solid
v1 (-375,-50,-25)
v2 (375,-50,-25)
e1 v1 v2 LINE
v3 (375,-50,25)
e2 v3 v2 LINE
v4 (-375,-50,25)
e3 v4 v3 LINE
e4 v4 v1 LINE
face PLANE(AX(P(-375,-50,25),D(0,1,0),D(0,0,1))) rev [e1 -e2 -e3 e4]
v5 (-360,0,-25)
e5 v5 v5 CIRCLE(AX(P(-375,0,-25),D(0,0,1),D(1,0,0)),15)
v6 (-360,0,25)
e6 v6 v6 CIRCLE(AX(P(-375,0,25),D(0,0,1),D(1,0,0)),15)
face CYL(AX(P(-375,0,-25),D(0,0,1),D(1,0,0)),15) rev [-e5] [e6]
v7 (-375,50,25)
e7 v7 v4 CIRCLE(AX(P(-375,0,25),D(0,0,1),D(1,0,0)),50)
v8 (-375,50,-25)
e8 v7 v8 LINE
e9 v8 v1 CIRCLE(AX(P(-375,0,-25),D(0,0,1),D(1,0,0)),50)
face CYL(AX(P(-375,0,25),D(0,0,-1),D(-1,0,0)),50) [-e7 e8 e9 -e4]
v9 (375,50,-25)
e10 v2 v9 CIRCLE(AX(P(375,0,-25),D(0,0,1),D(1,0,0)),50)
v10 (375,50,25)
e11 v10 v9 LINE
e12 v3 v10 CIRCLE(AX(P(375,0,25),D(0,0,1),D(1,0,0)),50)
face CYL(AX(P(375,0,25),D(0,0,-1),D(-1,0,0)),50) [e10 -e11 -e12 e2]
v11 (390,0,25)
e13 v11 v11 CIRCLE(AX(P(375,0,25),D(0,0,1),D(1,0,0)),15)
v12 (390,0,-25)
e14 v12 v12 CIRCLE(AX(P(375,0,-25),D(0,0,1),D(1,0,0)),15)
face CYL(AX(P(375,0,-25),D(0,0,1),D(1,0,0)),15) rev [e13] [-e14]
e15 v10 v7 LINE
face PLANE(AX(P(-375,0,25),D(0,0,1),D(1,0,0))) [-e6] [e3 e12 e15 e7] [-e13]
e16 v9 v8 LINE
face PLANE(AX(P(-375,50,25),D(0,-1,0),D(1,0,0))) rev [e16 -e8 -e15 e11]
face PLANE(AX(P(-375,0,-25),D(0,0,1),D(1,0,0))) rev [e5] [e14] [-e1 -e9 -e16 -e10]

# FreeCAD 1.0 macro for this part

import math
import FreeCAD as App
import Part
import Sketcher
Q = App.Units.Quantity

doc = App.newDocument("Part")
body = doc.addObject("PartDesign::Body", "Body")

sketch1 = body.newObject("Sketcher::SketchObject", "Sketch")
sketch1.AttachmentSupport = (doc.getObject("XY_Plane"), [""])
sketch1.MapMode = "FlatFace"
sketch1.addGeometry([
    Part.LineSegment(App.Vector(375, 50, 0), App.Vector(-375, 50, 0)),
    Part.ArcOfCircle(Part.Circle(App.Vector(-375, 0, 0), App.Vector(0, 0, 1), 50), math.radians(90), math.radians(270)),
    Part.LineSegment(App.Vector(-375, -50, 0), App.Vector(375, -50, 0)),
    Part.ArcOfCircle(Part.Circle(App.Vector(375, 0, 0), App.Vector(0, 0, 1), 50), math.radians(-90), math.radians(90)),
], False)
sketch1.addConstraint([
    Sketcher.Constraint("Tangent", 0, 2, 1, 1),
    Sketcher.Constraint("Tangent", 1, 2, 2, 1),
    Sketcher.Constraint("Tangent", 2, 2, 3, 1),
    Sketcher.Constraint("Tangent", 3, 2, 0, 1),
    Sketcher.Constraint("Horizontal", 0),
    Sketcher.Constraint("Horizontal", 2),
    Sketcher.Constraint("Symmetric", 1, 3, 3, 3, -1, 1),
    Sketcher.Constraint("Radius", 1, Q("50 mm")),
    Sketcher.Constraint("DistanceX", 0, 2, 0, 1, Q("750 mm")),
])
pad1 = body.newObject("PartDesign::Pad", "Pad")
pad1.Profile = sketch1
pad1.Length = 50
pad1.Midplane = True

sketch2 = body.newObject("Sketcher::SketchObject", "Sketch001")
sketch2.AttachmentSupport = (doc.getObject("XY_Plane"), [""])
sketch2.MapMode = "FlatFace"
sketch2.AttachmentOffset = App.Placement(App.Vector(0, 0, 25), App.Rotation())
sketch2.addGeometry([
    Part.Circle(App.Vector(-375, 0, 0), App.Vector(0, 0, 1), 15),
    Part.Circle(App.Vector(375, 0, 0), App.Vector(0, 0, 1), 15),
], False)
sketch2.addConstraint([
    Sketcher.Constraint("Equal", 0, 1),
    Sketcher.Constraint("Symmetric", 0, 3, 1, 3, -1, 1),
    Sketcher.Constraint("PointOnObject", 0, 3, -1),
    Sketcher.Constraint("Diameter", 0, Q("30 mm")),
    Sketcher.Constraint("DistanceX", 0, 3, -1, 1, Q("375 mm")),
])
pocket1 = body.newObject("PartDesign::Pocket", "Pocket")
pocket1.Profile = sketch2
pocket1.Type = "ThroughAll"

doc.recompute()
